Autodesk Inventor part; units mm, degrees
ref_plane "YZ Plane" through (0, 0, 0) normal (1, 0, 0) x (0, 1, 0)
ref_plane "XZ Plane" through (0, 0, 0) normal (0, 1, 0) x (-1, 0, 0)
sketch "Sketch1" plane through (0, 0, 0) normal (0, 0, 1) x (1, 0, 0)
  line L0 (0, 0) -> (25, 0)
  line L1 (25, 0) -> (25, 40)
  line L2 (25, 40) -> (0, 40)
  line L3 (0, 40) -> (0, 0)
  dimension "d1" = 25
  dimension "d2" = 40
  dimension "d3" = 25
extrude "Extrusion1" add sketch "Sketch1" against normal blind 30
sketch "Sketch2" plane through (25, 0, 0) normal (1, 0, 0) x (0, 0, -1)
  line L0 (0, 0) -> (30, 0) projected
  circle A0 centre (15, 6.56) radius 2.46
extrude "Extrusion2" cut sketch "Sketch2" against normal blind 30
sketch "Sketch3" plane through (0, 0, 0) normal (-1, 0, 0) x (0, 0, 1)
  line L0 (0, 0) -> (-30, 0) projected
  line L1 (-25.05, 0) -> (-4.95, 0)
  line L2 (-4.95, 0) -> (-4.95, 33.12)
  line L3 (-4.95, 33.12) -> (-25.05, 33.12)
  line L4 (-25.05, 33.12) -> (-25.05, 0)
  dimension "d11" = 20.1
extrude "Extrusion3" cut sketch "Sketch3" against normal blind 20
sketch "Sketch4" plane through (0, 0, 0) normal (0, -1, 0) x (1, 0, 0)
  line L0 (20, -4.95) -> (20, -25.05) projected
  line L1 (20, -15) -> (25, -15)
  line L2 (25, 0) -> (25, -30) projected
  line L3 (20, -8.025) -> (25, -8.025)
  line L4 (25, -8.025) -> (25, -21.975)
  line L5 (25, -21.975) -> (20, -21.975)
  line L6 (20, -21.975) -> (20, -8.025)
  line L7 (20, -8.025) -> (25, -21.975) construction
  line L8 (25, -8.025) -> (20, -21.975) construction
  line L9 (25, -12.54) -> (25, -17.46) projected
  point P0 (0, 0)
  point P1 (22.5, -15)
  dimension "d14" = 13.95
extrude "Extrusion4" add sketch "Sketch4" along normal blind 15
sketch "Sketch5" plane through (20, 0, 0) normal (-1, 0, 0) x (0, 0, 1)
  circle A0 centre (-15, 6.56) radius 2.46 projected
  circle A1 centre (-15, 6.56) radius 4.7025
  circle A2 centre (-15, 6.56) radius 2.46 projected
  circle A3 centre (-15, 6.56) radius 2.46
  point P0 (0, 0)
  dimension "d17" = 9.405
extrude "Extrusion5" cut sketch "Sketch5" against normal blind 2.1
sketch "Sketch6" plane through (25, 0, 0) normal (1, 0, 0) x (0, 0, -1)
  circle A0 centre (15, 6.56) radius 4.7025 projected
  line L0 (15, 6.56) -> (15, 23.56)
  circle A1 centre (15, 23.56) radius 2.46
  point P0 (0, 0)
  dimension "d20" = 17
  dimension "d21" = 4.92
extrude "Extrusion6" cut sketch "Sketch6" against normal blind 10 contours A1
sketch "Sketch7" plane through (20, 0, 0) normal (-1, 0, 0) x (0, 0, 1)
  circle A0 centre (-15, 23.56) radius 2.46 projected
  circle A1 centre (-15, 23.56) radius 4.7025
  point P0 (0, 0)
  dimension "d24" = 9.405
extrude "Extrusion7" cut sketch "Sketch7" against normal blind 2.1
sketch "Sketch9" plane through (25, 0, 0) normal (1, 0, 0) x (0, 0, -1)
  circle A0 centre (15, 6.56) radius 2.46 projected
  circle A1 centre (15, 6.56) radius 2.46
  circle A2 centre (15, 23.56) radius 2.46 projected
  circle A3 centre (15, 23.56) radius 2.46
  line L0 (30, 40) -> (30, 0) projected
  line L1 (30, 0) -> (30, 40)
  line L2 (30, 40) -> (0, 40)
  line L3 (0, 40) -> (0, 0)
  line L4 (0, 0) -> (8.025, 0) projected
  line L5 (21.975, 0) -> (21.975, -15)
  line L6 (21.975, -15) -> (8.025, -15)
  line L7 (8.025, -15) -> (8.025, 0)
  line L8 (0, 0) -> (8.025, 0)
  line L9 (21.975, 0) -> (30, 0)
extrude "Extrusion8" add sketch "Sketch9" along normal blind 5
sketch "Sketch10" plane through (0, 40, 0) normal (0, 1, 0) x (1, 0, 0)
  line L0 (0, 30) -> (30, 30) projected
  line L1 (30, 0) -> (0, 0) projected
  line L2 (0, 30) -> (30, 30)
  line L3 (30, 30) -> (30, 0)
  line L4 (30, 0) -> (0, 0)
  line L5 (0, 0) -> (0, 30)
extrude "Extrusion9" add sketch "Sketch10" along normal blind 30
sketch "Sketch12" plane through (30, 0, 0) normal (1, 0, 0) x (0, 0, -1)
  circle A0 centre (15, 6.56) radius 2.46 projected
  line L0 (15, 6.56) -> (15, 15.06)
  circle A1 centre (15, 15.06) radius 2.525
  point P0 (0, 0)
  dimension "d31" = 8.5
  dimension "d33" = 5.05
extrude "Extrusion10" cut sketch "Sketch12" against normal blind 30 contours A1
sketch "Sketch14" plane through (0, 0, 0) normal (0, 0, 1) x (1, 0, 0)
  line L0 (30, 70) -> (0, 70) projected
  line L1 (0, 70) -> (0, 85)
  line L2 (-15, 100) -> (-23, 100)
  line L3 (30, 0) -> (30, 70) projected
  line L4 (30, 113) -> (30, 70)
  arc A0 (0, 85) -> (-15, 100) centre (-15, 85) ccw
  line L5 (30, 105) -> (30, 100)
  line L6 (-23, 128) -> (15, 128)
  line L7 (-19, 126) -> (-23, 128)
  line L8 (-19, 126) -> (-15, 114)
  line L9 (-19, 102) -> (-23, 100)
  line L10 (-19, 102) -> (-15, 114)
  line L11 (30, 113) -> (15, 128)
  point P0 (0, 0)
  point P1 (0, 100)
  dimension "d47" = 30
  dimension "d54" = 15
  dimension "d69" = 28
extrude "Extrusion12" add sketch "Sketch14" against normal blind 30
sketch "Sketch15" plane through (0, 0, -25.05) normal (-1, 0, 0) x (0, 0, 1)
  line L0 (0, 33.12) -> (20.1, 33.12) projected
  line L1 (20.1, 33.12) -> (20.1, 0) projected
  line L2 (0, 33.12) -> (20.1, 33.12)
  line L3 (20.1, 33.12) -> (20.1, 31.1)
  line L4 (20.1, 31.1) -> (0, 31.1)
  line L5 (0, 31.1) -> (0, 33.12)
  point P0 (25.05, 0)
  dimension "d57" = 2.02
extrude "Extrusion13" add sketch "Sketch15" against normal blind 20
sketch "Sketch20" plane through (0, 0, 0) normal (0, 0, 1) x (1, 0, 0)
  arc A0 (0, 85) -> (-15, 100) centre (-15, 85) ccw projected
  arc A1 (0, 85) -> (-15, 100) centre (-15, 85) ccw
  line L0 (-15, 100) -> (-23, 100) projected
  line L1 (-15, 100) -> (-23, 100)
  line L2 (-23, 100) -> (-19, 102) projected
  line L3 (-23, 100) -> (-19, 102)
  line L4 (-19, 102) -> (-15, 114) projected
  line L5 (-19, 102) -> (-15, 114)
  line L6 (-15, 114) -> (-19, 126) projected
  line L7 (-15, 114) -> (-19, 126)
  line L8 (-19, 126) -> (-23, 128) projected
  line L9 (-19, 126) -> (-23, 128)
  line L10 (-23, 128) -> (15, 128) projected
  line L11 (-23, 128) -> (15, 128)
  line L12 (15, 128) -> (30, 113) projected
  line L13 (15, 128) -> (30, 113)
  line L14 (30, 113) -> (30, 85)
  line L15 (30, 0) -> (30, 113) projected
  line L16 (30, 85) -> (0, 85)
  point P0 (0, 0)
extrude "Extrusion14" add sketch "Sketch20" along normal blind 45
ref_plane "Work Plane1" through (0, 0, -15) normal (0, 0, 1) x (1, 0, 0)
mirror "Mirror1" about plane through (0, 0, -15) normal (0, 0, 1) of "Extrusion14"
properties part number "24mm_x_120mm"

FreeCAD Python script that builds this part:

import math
import FreeCAD as App
import Part
import Sketcher
from FreeCAD import Vector
Q = App.Units.Quantity


def add_polygon(sketch, points):
    """Adds a closed chain of lines whose ends are joined by coincident constraints."""
    first, n = sketch.GeometryCount, len(points)
    for a, b in zip(points, points[1:] + points[:1]):
        sketch.addGeometry(Part.LineSegment(App.Vector(*a, 0), App.Vector(*b, 0)), False)
    for i in range(n):
        sketch.addConstraint(Sketcher.Constraint("Coincident", first + i, 2, first + (i + 1) % n, 1))

doc = App.newDocument("Part")
params = doc.addObject("Spreadsheet::Sheet", "Params")
for row, (alias, value) in enumerate([
    ("sketch1_width", "25 mm"),
    ("sketch1_height", "40 mm"),
    ("pad1_length", "30 mm"),
    ("sketch2_diameter", "4.92 mm"),
    ("pocket1_length", "30 mm"),
    ("sketch3_height", "20.1 mm"),
    ("sketch3_width", "33.12 mm"),
    ("pocket2_length", "20 mm"),
    ("sketch4_height", "13.95 mm"),
    ("sketch4_width", "5 mm"),
    ("pad2_length", "15 mm"),
    ("sketch5_diameter", "4.92 mm"),
    ("pocket3_length", "2.1 mm"),
    ("sketch6_diameter", "4.92 mm"),
    ("pocket4_length", "10 mm"),
    ("sketch7_diameter", "4.92 mm"),
    ("pocket5_length", "2.1 mm"),
    ("sketch8_diameter", "4.92 mm"),
    ("sketch8_width", "40 mm"),
    ("sketch8_width2", "15 mm"),
    ("sketch8_height", "30 mm"),
    ("sketch8_height2", "13.95 mm"),
    ("pad3_length", "5 mm"),
    ("sketch9_width", "30 mm"),
    ("pad4_length", "30 mm"),
    ("sketch10_diameter", "5.05 mm"),
    ("pocket6_length", "30 mm"),
    ("sketch11_radius", "15 mm"),
    ("sketch11_width", "30 mm"),
    ("sketch11_height", "15 mm"),
    ("sketch11_width2", "38 mm"),
    ("pad5_length", "30 mm"),
    ("sketch12_width", "2.02 mm"),
    ("sketch12_height", "20.1 mm"),
    ("pad6_length", "20 mm"),
    ("sketch13_radius", "15 mm"),
    ("sketch13_width", "30 mm"),
    ("sketch13_width2", "38 mm"),
    ("sketch13_width3", "8 mm"),
    ("sketch13_height", "28 mm"),
    ("pad7_length", "45 mm"),
], start=1):
    params.set(f"A{row}", alias)
    params.set(f"B{row}", "=" + value)
    params.setAlias(f"B{row}", alias)

body = doc.addObject("PartDesign::Body", "Body")

sketch1 = body.newObject("Sketcher::SketchObject", "Sketch")
sketch1.AttachmentSupport = (doc.getObject("XY_Plane"), [""])
sketch1.MapMode = "FlatFace"
add_polygon(sketch1, [(0, 40), (0, 0), (25, 0), (25, 40)])
sketch1.addConstraint([
    Sketcher.Constraint("Vertical", 0),
    Sketcher.Constraint("Horizontal", 1),
    Sketcher.Constraint("Vertical", 2),
    Sketcher.Constraint("Horizontal", 3),
    Sketcher.Constraint("Coincident", 0, 2, -1, 1),
    Sketcher.Constraint("DistanceX", 1, 1, 1, 2, Q("25 mm")),
    Sketcher.Constraint("DistanceY", 0, 2, 0, 1, Q("40 mm")),
])
sketch1.setExpression("Constraints[9]", "Params.sketch1_width")
sketch1.setExpression("Constraints[10]", "Params.sketch1_height")
pad1 = body.newObject("PartDesign::Pad", "Pad")
pad1.Profile = sketch1
pad1.setExpression("Length", "Params.pad1_length")
pad1.Reversed = True

sketch2 = body.newObject("Sketcher::SketchObject", "Sketch001")
sketch2.AttachmentSupport = (doc.getObject("YZ_Plane"), [""])
sketch2.MapMode = "FlatFace"
sketch2.AttachmentOffset = App.Placement(Vector(0, 0, 25), App.Rotation())
sketch2.addGeometry(Part.Circle(Vector(6.6, -15, 0), Vector(0, 0, 1), 2.5), False)
sketch2.addConstraint([
    Sketcher.Constraint("Diameter", 0, Q("4.92 mm")),
    Sketcher.Constraint("DistanceY", 0, 3, -1, 1, Q("15 mm")),
    Sketcher.Constraint("DistanceX", -1, 1, 0, 3, Q("6.56 mm")),
])
sketch2.setExpression("Constraints[0]", "Params.sketch2_diameter")
pocket1 = body.newObject("PartDesign::Pocket", "Pocket")
pocket1.Profile = sketch2
pocket1.setExpression("Length", "Params.pocket1_length")

sketch3 = body.newObject("Sketcher::SketchObject", "Sketch002")
sketch3.AttachmentSupport = (doc.getObject("YZ_Plane"), [""])
sketch3.MapMode = "FlatFace"
add_polygon(sketch3, [(0, -25), (0, -5), (33, -5), (33, -25)])
sketch3.addConstraint([
    Sketcher.Constraint("Vertical", 0),
    Sketcher.Constraint("Horizontal", 1),
    Sketcher.Constraint("Vertical", 2),
    Sketcher.Constraint("Horizontal", 3),
    Sketcher.Constraint("PointOnObject", 0, 2, -2),
    Sketcher.Constraint("DistanceY", 0, 1, 0, 2, Q("20.1 mm")),
    Sketcher.Constraint("DistanceX", 1, 1, 1, 2, Q("33.12 mm")),
    Sketcher.Constraint("DistanceY", 0, 2, -1, 1, Q("4.95 mm")),
])
sketch3.setExpression("Constraints[9]", "Params.sketch3_height")
sketch3.setExpression("Constraints[10]", "Params.sketch3_width")
pocket2 = body.newObject("PartDesign::Pocket", "Pocket001")
pocket2.Profile = sketch3
pocket2.setExpression("Length", "Params.pocket2_length")
pocket2.Reversed = True

sketch4 = body.newObject("Sketcher::SketchObject", "Sketch003")
sketch4.AttachmentSupport = (doc.getObject("XZ_Plane"), [""])
sketch4.MapMode = "FlatFace"
add_polygon(sketch4, [(25, -8), (20, -8), (20, -22), (25, -22)])
sketch4.addConstraint([
    Sketcher.Constraint("Horizontal", 0),
    Sketcher.Constraint("Vertical", 1),
    Sketcher.Constraint("Horizontal", 2),
    Sketcher.Constraint("Vertical", 3),
    Sketcher.Constraint("DistanceY", 1, 2, 1, 1, Q("13.95 mm")),
    Sketcher.Constraint("DistanceX", 0, 2, 0, 1, Q("5 mm")),
    Sketcher.Constraint("DistanceX", -1, 1, 0, 2, Q("20 mm")),
    Sketcher.Constraint("DistanceY", 0, 2, -1, 1, Q("8.025 mm")),
])
sketch4.setExpression("Constraints[8]", "Params.sketch4_height")
sketch4.setExpression("Constraints[9]", "Params.sketch4_width")
pad2 = body.newObject("PartDesign::Pad", "Pad001")
pad2.Profile = sketch4
pad2.setExpression("Length", "Params.pad2_length")

sketch5 = body.newObject("Sketcher::SketchObject", "Sketch004")
sketch5.AttachmentSupport = (doc.getObject("YZ_Plane"), [""])
sketch5.MapMode = "FlatFace"
sketch5.AttachmentOffset = App.Placement(Vector(0, 0, 20), App.Rotation())
sketch5.addGeometry([
    Part.Circle(Vector(6.6, -15, 0), Vector(0, 0, 1), 4.7),
    Part.Circle(Vector(6.6, -15, 0), Vector(0, 0, 1), 2.5),
], False)
sketch5.addConstraint([
    Sketcher.Constraint("Coincident", 1, 3, 0, 3),
    Sketcher.Constraint("Diameter", 0, Q("9.405 mm")),
    Sketcher.Constraint("Diameter", 1, Q("4.92 mm")),
    Sketcher.Constraint("DistanceY", 0, 3, -1, 1, Q("15 mm")),
    Sketcher.Constraint("DistanceX", -1, 1, 0, 3, Q("6.56 mm")),
])
sketch5.setExpression("Constraints[2]", "Params.sketch5_diameter")
pocket3 = body.newObject("PartDesign::Pocket", "Pocket002")
pocket3.Profile = sketch5
pocket3.setExpression("Length", "Params.pocket3_length")
pocket3.Reversed = True

sketch6 = body.newObject("Sketcher::SketchObject", "Sketch005")
sketch6.AttachmentSupport = (doc.getObject("YZ_Plane"), [""])
sketch6.MapMode = "FlatFace"
sketch6.AttachmentOffset = App.Placement(Vector(0, 0, 25), App.Rotation())
sketch6.addGeometry(Part.Circle(Vector(23.6, -15, 0), Vector(0, 0, 1), 2.5), False)
sketch6.addConstraint([
    Sketcher.Constraint("Diameter", 0, Q("4.92 mm")),
    Sketcher.Constraint("DistanceY", 0, 3, -1, 1, Q("15 mm")),
    Sketcher.Constraint("DistanceX", -1, 1, 0, 3, Q("23.56 mm")),
])
sketch6.setExpression("Constraints[0]", "Params.sketch6_diameter")
pocket4 = body.newObject("PartDesign::Pocket", "Pocket003")
pocket4.Profile = sketch6
pocket4.setExpression("Length", "Params.pocket4_length")

sketch7 = body.newObject("Sketcher::SketchObject", "Sketch006")
sketch7.AttachmentSupport = (doc.getObject("YZ_Plane"), [""])
sketch7.MapMode = "FlatFace"
sketch7.AttachmentOffset = App.Placement(Vector(0, 0, 20), App.Rotation())
sketch7.addGeometry([
    Part.Circle(Vector(23.6, -15, 0), Vector(0, 0, 1), 4.7),
    Part.Circle(Vector(23.6, -15, 0), Vector(0, 0, 1), 2.5),
], False)
sketch7.addConstraint([
    Sketcher.Constraint("Coincident", 1, 3, 0, 3),
    Sketcher.Constraint("Diameter", 0, Q("9.405 mm")),
    Sketcher.Constraint("Diameter", 1, Q("4.92 mm")),
    Sketcher.Constraint("DistanceY", 0, 3, -1, 1, Q("15 mm")),
    Sketcher.Constraint("DistanceX", -1, 1, 0, 3, Q("23.56 mm")),
])
sketch7.setExpression("Constraints[2]", "Params.sketch7_diameter")
pocket5 = body.newObject("PartDesign::Pocket", "Pocket004")
pocket5.Profile = sketch7
pocket5.setExpression("Length", "Params.pocket5_length")
pocket5.Reversed = True

sketch8 = body.newObject("Sketcher::SketchObject", "Sketch007")
sketch8.AttachmentSupport = (doc.getObject("YZ_Plane"), [""])
sketch8.MapMode = "FlatFace"
sketch8.AttachmentOffset = App.Placement(Vector(0, 0, 25), App.Rotation())
add_polygon(sketch8, [(0, -30), (40, -30), (40, 0), (0, 0), (0, -8), (-15, -8), (-15, -22), (0, -22)])
sketch8.addGeometry(Part.Circle(Vector(6.6, -15, 0), Vector(0, 0, 1), 2.5), False)
sketch8.addGeometry(Part.Circle(Vector(23.6, -15, 0), Vector(0, 0, 1), 2.5), False)
sketch8.addConstraint([
    Sketcher.Constraint("Horizontal", 0),
    Sketcher.Constraint("Vertical", 1),
    Sketcher.Constraint("Horizontal", 2),
    Sketcher.Constraint("Vertical", 3),
    Sketcher.Constraint("Horizontal", 4),
    Sketcher.Constraint("Vertical", 5),
    Sketcher.Constraint("Horizontal", 6),
    Sketcher.Constraint("Vertical", 7),
    Sketcher.Constraint("Coincident", 2, 2, -1, 1),
    Sketcher.Constraint("Equal", 8, 9),
    Sketcher.Constraint("PointOnObject", 6, 2, -2),
    Sketcher.Constraint("Horizontal", 8, 3, 9, 3),
    Sketcher.Constraint("Equal", 3, 7),
    Sketcher.Constraint("Diameter", 8, Q("4.92 mm")),
    Sketcher.Constraint("DistanceX", 0, 1, 0, 2, Q("40 mm")),
    Sketcher.Constraint("DistanceX", 4, 2, 4, 1, Q("15 mm")),
    Sketcher.Constraint("DistanceY", 1, 1, 1, 2, Q("30 mm")),
    Sketcher.Constraint("DistanceY", 8, 3, -1, 1, Q("15 mm")),
    Sketcher.Constraint("DistanceX", 8, 3, 9, 3, Q("17 mm")),
    Sketcher.Constraint("DistanceY", 5, 2, 5, 1, Q("13.95 mm")),
    Sketcher.Constraint("DistanceX", -1, 1, 8, 3, Q("6.56 mm")),
])
sketch8.setExpression("Constraints[21]", "Params.sketch8_diameter")
sketch8.setExpression("Constraints[22]", "Params.sketch8_width")
sketch8.setExpression("Constraints[23]", "Params.sketch8_width2")
sketch8.setExpression("Constraints[24]", "Params.sketch8_height")
sketch8.setExpression("Constraints[27]", "Params.sketch8_height2")
pad3 = body.newObject("PartDesign::Pad", "Pad002")
pad3.Profile = sketch8
pad3.setExpression("Length", "Params.pad3_length")

sketch9 = body.newObject("Sketcher::SketchObject", "Sketch008")
sketch9.AttachmentSupport = (doc.getObject("XZ_Plane"), [""])
sketch9.MapMode = "FlatFace"
sketch9.AttachmentOffset = App.Placement(Vector(0, 0, -40), App.Rotation())
add_polygon(sketch9, [(30, -30), (0, -30), (0, 0), (30, 0)])
sketch9.addConstraint([
    Sketcher.Constraint("Horizontal", 0),
    Sketcher.Constraint("Vertical", 1),
    Sketcher.Constraint("Horizontal", 2),
    Sketcher.Constraint("Vertical", 3),
    Sketcher.Constraint("Coincident", 1, 2, -1, 1),
    Sketcher.Constraint("Equal", 2, 1),
    Sketcher.Constraint("DistanceX", 0, 2, 0, 1, Q("30 mm")),
])
sketch9.setExpression("Constraints[10]", "Params.sketch9_width")
pad4 = body.newObject("PartDesign::Pad", "Pad003")
pad4.Profile = sketch9
pad4.setExpression("Length", "Params.pad4_length")
pad4.Reversed = True

sketch10 = body.newObject("Sketcher::SketchObject", "Sketch009")
sketch10.AttachmentSupport = (doc.getObject("YZ_Plane"), [""])
sketch10.MapMode = "FlatFace"
sketch10.AttachmentOffset = App.Placement(Vector(0, 0, 30), App.Rotation())
sketch10.addGeometry(Part.Circle(Vector(15.1, -15, 0), Vector(0, 0, 1), 2.5), False)
sketch10.addConstraint([
    Sketcher.Constraint("Diameter", 0, Q("5.05 mm")),
    Sketcher.Constraint("DistanceY", 0, 3, -1, 1, Q("15 mm")),
    Sketcher.Constraint("DistanceX", -1, 1, 0, 3, Q("15.06 mm")),
])
sketch10.setExpression("Constraints[0]", "Params.sketch10_diameter")
pocket6 = body.newObject("PartDesign::Pocket", "Pocket005")
pocket6.Profile = sketch10
pocket6.setExpression("Length", "Params.pocket6_length")

sketch11 = body.newObject("Sketcher::SketchObject", "Sketch010")
sketch11.AttachmentSupport = (doc.getObject("XY_Plane"), [""])
sketch11.MapMode = "FlatFace"
sketch11.addGeometry([
    Part.LineSegment(Vector(0, 70, 0), Vector(30, 70, 0)),
    Part.LineSegment(Vector(30, 70, 0), Vector(30, 113, 0)),
    Part.LineSegment(Vector(30, 113, 0), Vector(15, 128, 0)),
    Part.LineSegment(Vector(15, 128, 0), Vector(-23, 128, 0)),
    Part.LineSegment(Vector(-23, 128, 0), Vector(-19, 126, 0)),
    Part.LineSegment(Vector(-19, 126, 0), Vector(-15, 114, 0)),
    Part.LineSegment(Vector(-15, 114, 0), Vector(-19, 102, 0)),
    Part.LineSegment(Vector(-19, 102, 0), Vector(-23, 100, 0)),
    Part.LineSegment(Vector(-23, 100, 0), Vector(-15, 100, 0)),
    Part.ArcOfCircle(Part.Circle(Vector(-15, 85, 0), Vector(0, 0, 1), 15), math.radians(0), math.radians(90)),
    Part.LineSegment(Vector(0, 85, 0), Vector(0, 70, 0)),
], False)
sketch11.addConstraint([
    Sketcher.Constraint("Coincident", 0, 2, 1, 1),
    Sketcher.Constraint("Coincident", 1, 2, 2, 1),
    Sketcher.Constraint("Coincident", 2, 2, 3, 1),
    Sketcher.Constraint("Coincident", 3, 2, 4, 1),
    Sketcher.Constraint("Coincident", 4, 2, 5, 1),
    Sketcher.Constraint("Coincident", 5, 2, 6, 1),
    Sketcher.Constraint("Coincident", 6, 2, 7, 1),
    Sketcher.Constraint("Coincident", 7, 2, 8, 1),
    Sketcher.Constraint("Tangent", 8, 2, 9, 2),
    Sketcher.Constraint("Tangent", 9, 1, 10, 1),
    Sketcher.Constraint("Coincident", 10, 2, 0, 1),
    Sketcher.Constraint("Horizontal", 0),
    Sketcher.Constraint("Vertical", 1),
    Sketcher.Constraint("Horizontal", 3),
    Sketcher.Constraint("Horizontal", 8),
    Sketcher.Constraint("Vertical", 10),
    Sketcher.Constraint("PointOnObject", 9, 1, -2),
    Sketcher.Constraint("Vertical", 9, 3, 5, 2),
    Sketcher.Constraint("Vertical", 4, 2, 6, 2),
    Sketcher.Constraint("Vertical", 3, 2, 7, 2),
    Sketcher.Constraint("Equal", 5, 6),
    Sketcher.Constraint("Equal", 4, 7),
    Sketcher.Constraint("Radius", 9, Q("15 mm")),
    Sketcher.Constraint("DistanceX", 0, 1, 0, 2, Q("30 mm")),
    Sketcher.Constraint("DistanceY", 10, 2, 10, 1, Q("15 mm")),
    Sketcher.Constraint("DistanceX", -1, 1, 2, 2, Q("15 mm")),
    Sketcher.Constraint("DistanceY", 9, 3, 1, 2, Q("28 mm")),
    Sketcher.Constraint("DistanceY", 1, 2, 2, 2, Q("15 mm")),
    Sketcher.Constraint("DistanceX", 3, 2, 3, 1, Q("38 mm")),
    Sketcher.Constraint("DistanceY", -1, 1, 9, 3, Q("85 mm")),
    Sketcher.Constraint("DistanceX", 4, 2, -1, 1, Q("19 mm")),
    Sketcher.Constraint("DistanceY", -1, 1, 4, 2, Q("126 mm")),
])
sketch11.setExpression("Constraints[22]", "Params.sketch11_radius")
sketch11.setExpression("Constraints[23]", "Params.sketch11_width")
sketch11.setExpression("Constraints[24]", "Params.sketch11_height")
sketch11.setExpression("Constraints[28]", "Params.sketch11_width2")
pad5 = body.newObject("PartDesign::Pad", "Pad004")
pad5.Profile = sketch11
pad5.setExpression("Length", "Params.pad5_length")
pad5.Reversed = True

sketch12 = body.newObject("Sketcher::SketchObject", "Sketch011")
sketch12.AttachmentSupport = (doc.getObject("YZ_Plane"), [""])
sketch12.MapMode = "FlatFace"
add_polygon(sketch12, [(33.1, -5), (33.1, -25.1), (31.1, -25.1), (31.1, -5)])
sketch12.addConstraint([
    Sketcher.Constraint("Vertical", 0),
    Sketcher.Constraint("Horizontal", 1),
    Sketcher.Constraint("Vertical", 2),
    Sketcher.Constraint("Horizontal", 3),
    Sketcher.Constraint("DistanceX", 1, 2, 1, 1, Q("2.02 mm")),
    Sketcher.Constraint("DistanceY", 0, 2, 0, 1, Q("20.1 mm")),
    Sketcher.Constraint("DistanceX", -1, 1, 1, 2, Q("31.1 mm")),
    Sketcher.Constraint("DistanceY", 0, 2, -1, 1, Q("25.05 mm")),
])
sketch12.setExpression("Constraints[8]", "Params.sketch12_width")
sketch12.setExpression("Constraints[9]", "Params.sketch12_height")
pad6 = body.newObject("PartDesign::Pad", "Pad005")
pad6.Profile = sketch12
pad6.setExpression("Length", "Params.pad6_length")

sketch13 = body.newObject("Sketcher::SketchObject", "Sketch012")
sketch13.AttachmentSupport = (doc.getObject("XY_Plane"), [""])
sketch13.MapMode = "FlatFace"
sketch13.addGeometry([
    Part.ArcOfCircle(Part.Circle(Vector(-15, 85, 0), Vector(0, 0, 1), 15), math.radians(0), math.radians(90)),
    Part.LineSegment(Vector(0, 85, 0), Vector(30, 85, 0)),
    Part.LineSegment(Vector(30, 85, 0), Vector(30, 113, 0)),
    Part.LineSegment(Vector(30, 113, 0), Vector(15, 128, 0)),
    Part.LineSegment(Vector(15, 128, 0), Vector(-23, 128, 0)),
    Part.LineSegment(Vector(-23, 128, 0), Vector(-19, 126, 0)),
    Part.LineSegment(Vector(-19, 126, 0), Vector(-15, 114, 0)),
    Part.LineSegment(Vector(-15, 114, 0), Vector(-19, 102, 0)),
    Part.LineSegment(Vector(-19, 102, 0), Vector(-23, 100, 0)),
    Part.LineSegment(Vector(-23, 100, 0), Vector(-15, 100, 0)),
], False)
sketch13.addConstraint([
    Sketcher.Constraint("Coincident", 0, 1, 1, 1),
    Sketcher.Constraint("Coincident", 1, 2, 2, 1),
    Sketcher.Constraint("Coincident", 2, 2, 3, 1),
    Sketcher.Constraint("Coincident", 3, 2, 4, 1),
    Sketcher.Constraint("Coincident", 4, 2, 5, 1),
    Sketcher.Constraint("Coincident", 5, 2, 6, 1),
    Sketcher.Constraint("Coincident", 6, 2, 7, 1),
    Sketcher.Constraint("Coincident", 7, 2, 8, 1),
    Sketcher.Constraint("Coincident", 8, 2, 9, 1),
    Sketcher.Constraint("Tangent", 9, 2, 0, 2),
    Sketcher.Constraint("Horizontal", 1),
    Sketcher.Constraint("Vertical", 2),
    Sketcher.Constraint("Horizontal", 4),
    Sketcher.Constraint("Horizontal", 9),
    Sketcher.Constraint("PointOnObject", 0, 1, -2),
    Sketcher.Constraint("Vertical", 0, 3, 6, 2),
    Sketcher.Constraint("Vertical", 5, 2, 7, 2),
    Sketcher.Constraint("Vertical", 4, 2, 8, 2),
    Sketcher.Constraint("Equal", 6, 7),
    Sketcher.Constraint("Equal", 5, 8),
    Sketcher.Constraint("Radius", 0, Q("15 mm")),
    Sketcher.Constraint("DistanceX", 1, 1, 1, 2, Q("30 mm")),
    Sketcher.Constraint("DistanceX", 4, 2, 4, 1, Q("38 mm")),
    Sketcher.Constraint("DistanceX", 9, 1, 9, 2, Q("8 mm")),
    Sketcher.Constraint("DistanceY", 2, 1, 2, 2, Q("28 mm")),
    Sketcher.Constraint("Angle", 3, Q("135 deg")),
    Sketcher.Constraint("DistanceY", -1, 1, 0, 3, Q("85 mm")),
    Sketcher.Constraint("DistanceY", -1, 1, 0, 1, Q("85 mm")),
    Sketcher.Constraint("DistanceX", 5, 2, -1, 1, Q("19 mm")),
    Sketcher.Constraint("DistanceY", -1, 1, 5, 2, Q("126 mm")),
])
sketch13.setExpression("Constraints[20]", "Params.sketch13_radius")
sketch13.setExpression("Constraints[21]", "Params.sketch13_width")
sketch13.setExpression("Constraints[22]", "Params.sketch13_width2")
sketch13.setExpression("Constraints[23]", "Params.sketch13_width3")
sketch13.setExpression("Constraints[24]", "Params.sketch13_height")
pad7 = body.newObject("PartDesign::Pad", "Pad006")
pad7.Profile = sketch13
pad7.setExpression("Length", "Params.pad7_length")
doc.recompute()

datumplane = body.newObject("PartDesign::Plane", "DatumPlane")
datumplane.AttachmentSupport = (doc.getObject("XY_Plane"), [""])
datumplane.MapMode = "FlatFace"
datumplane.AttachmentOffset = App.Placement(Vector(0, 0, -15), App.Rotation())
mirrored = body.newObject("PartDesign::Mirrored", "Mirrored")
mirrored.Originals = [pad7]
mirrored.MirrorPlane = (datumplane, [""])
body.Tip = mirrored

doc.recompute()
